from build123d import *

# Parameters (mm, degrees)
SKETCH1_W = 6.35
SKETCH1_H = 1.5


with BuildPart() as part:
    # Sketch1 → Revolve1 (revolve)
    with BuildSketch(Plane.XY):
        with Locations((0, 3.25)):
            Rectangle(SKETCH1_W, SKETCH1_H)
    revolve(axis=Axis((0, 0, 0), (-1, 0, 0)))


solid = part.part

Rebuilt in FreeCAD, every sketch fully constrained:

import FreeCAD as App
import Part
import Sketcher

doc = App.newDocument("Part")
body = doc.addObject("PartDesign::Body", "Body")

# Sketch on XY plane
sketch1 = doc.addObject("Sketcher::SketchObject", "Sketch")
body.addObject(sketch1)
sketch1.AttachmentSupport = (doc.XY_Plane, [""])
sketch1.MapMode = "FlatFace"
sketch1.addGeometry(Part.LineSegment(App.Vector(-3.2, 4, 0), App.Vector(-3.2, 2.5, 0)), False)
sketch1.addGeometry(Part.LineSegment(App.Vector(-3.2, 2.5, 0), App.Vector(3.2, 2.5, 0)), False)
sketch1.addGeometry(Part.LineSegment(App.Vector(3.2, 2.5, 0), App.Vector(3.2, 4, 0)), False)
sketch1.addGeometry(Part.LineSegment(App.Vector(3.2, 4, 0), App.Vector(-3.2, 4, 0)), False)
sketch1.addConstraint(Sketcher.Constraint("Coincident", 0, 2, 1, 1))
sketch1.addConstraint(Sketcher.Constraint("Coincident", 1, 2, 2, 1))
sketch1.addConstraint(Sketcher.Constraint("Coincident", 2, 2, 3, 1))
sketch1.addConstraint(Sketcher.Constraint("Coincident", 3, 2, 0, 1))
sketch1.addConstraint(Sketcher.Constraint("Vertical", 0))
sketch1.addConstraint(Sketcher.Constraint("Horizontal", 1))
sketch1.addConstraint(Sketcher.Constraint("Vertical", 2))
sketch1.addConstraint(Sketcher.Constraint("Horizontal", 3))
sketch1.addConstraint(Sketcher.Constraint("DistanceY", 0, 2, 0, 1, 1.5))
sketch1.addConstraint(Sketcher.Constraint("DistanceY", -1, 1, 2, 2, 4.0))
sketch1.addConstraint(Sketcher.Constraint("DistanceX", 1, 1, 1, 2, 6.35))
sketch1.addConstraint(Sketcher.Constraint("DistanceX", 0, 2, -1, 1, 3.175))
revolution = doc.addObject("PartDesign::Revolution", "Revolution")
body.addObject(revolution)
revolution.Profile = sketch1
revolution.ReferenceAxis = (sketch1, ["H_Axis"])
revolution.Angle = 360

doc.recompute()
